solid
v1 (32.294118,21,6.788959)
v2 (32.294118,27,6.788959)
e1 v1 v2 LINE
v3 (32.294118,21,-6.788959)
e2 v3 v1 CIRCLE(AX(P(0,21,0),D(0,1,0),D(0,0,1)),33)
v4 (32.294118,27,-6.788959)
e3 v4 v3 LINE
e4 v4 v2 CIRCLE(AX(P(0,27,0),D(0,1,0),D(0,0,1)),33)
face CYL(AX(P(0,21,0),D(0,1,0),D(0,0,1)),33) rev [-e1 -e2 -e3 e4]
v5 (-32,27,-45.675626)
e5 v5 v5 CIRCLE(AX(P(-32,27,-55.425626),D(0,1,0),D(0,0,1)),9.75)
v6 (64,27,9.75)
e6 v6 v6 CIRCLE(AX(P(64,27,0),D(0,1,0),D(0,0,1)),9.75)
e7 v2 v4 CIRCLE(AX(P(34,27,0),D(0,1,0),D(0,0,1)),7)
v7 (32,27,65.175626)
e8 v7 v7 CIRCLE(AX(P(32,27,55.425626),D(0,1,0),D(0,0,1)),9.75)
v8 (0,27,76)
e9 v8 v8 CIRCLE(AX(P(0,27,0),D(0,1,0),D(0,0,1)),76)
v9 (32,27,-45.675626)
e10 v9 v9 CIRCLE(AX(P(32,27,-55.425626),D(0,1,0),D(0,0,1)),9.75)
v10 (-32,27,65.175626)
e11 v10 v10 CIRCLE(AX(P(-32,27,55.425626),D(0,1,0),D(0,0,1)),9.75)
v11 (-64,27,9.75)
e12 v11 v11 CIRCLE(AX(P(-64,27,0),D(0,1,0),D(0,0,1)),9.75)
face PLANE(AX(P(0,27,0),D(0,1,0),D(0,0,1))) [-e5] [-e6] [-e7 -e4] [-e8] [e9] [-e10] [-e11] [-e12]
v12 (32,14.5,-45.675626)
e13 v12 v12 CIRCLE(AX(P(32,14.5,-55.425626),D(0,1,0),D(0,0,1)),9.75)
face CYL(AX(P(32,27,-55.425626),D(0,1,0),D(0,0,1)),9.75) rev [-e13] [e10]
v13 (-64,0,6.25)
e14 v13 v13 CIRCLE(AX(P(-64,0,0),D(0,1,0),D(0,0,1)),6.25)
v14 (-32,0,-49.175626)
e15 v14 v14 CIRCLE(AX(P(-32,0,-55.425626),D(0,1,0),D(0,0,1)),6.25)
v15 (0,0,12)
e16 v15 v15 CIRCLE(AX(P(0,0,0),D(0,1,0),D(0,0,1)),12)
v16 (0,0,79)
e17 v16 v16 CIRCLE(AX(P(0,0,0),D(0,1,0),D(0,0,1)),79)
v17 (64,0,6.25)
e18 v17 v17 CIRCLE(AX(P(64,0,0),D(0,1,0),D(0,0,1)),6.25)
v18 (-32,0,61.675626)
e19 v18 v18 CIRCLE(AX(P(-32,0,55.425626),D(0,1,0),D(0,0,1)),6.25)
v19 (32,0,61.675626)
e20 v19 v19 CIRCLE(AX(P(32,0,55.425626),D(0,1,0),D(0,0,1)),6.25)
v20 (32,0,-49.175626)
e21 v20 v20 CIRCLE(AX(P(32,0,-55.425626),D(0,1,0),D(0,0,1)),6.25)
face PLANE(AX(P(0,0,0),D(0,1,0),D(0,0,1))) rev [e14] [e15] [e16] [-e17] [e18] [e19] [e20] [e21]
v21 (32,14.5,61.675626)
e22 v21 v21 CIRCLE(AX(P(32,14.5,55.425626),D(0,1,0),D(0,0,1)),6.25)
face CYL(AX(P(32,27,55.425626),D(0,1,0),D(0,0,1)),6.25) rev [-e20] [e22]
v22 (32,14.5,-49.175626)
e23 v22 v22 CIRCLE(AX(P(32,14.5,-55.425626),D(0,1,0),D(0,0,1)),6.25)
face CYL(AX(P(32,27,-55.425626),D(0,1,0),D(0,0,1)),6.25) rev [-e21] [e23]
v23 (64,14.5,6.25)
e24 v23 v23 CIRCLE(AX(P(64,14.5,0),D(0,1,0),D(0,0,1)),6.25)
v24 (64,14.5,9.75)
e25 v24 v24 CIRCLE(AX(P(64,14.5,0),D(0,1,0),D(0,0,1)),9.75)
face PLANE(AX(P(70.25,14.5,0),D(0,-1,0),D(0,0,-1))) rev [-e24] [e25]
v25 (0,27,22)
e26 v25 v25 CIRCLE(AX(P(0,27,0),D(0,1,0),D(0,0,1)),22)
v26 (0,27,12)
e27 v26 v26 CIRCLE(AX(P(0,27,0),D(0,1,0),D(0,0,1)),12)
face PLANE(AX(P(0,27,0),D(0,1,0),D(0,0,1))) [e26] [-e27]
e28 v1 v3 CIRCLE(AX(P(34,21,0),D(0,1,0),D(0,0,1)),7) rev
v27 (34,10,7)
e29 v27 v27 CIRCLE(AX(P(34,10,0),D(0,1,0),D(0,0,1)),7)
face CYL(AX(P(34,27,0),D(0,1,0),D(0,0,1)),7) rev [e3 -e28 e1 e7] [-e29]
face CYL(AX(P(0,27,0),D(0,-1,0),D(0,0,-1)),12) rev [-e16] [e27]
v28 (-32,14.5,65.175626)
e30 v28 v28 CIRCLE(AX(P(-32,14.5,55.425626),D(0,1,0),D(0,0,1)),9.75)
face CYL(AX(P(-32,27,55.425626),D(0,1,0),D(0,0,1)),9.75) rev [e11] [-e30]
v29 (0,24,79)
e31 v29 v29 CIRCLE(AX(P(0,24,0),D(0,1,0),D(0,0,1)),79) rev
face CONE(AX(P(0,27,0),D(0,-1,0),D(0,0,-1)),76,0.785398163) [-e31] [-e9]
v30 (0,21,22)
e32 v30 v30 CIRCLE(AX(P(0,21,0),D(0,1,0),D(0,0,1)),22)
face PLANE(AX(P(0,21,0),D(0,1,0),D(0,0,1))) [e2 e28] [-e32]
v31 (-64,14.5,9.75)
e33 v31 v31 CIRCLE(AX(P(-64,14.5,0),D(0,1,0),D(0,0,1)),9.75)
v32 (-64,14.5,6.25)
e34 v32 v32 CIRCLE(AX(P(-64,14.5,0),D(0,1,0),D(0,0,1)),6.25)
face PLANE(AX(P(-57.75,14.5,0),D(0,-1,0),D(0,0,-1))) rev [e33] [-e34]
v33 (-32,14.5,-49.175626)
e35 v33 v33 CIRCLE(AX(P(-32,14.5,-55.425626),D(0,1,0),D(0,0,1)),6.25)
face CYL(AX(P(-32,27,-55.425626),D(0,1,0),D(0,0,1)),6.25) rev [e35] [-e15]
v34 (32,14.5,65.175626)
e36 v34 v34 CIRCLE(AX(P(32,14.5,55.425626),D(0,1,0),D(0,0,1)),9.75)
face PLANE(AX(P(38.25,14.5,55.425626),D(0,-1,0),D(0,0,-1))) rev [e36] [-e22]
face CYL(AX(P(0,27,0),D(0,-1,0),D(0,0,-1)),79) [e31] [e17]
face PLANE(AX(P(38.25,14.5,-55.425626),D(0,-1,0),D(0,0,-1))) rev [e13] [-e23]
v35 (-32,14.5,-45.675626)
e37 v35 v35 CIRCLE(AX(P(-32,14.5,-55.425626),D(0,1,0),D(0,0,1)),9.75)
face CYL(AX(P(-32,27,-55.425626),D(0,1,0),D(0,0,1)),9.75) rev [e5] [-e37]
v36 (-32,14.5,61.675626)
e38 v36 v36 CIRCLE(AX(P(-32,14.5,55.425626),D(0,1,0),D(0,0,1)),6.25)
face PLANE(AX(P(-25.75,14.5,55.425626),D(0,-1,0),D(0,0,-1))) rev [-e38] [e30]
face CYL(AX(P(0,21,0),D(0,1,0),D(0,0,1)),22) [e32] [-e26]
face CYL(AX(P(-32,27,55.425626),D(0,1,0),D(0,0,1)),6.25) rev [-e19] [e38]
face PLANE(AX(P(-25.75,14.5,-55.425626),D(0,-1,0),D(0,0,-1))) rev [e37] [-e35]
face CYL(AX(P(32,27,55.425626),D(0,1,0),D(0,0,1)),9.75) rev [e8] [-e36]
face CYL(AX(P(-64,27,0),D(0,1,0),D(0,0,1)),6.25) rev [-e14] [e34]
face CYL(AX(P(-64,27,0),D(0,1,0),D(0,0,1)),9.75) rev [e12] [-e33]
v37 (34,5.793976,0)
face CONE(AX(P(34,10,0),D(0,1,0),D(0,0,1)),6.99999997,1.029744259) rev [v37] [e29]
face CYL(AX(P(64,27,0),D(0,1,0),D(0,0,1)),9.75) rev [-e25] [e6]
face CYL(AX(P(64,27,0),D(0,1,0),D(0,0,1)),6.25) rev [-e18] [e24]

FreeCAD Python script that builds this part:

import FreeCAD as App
import Part
import Sketcher


def edges_at(feature, points):
    """Names of the edges that pass closest to the given points."""
    edges = feature.Shape.Edges
    near = lambda p: min(range(len(edges)), key=lambda i: edges[i].distToShape(Part.Vertex(*p))[0])
    return sorted({f"Edge{near(p) + 1}" for p in points})

doc = App.newDocument("Part")
body = doc.addObject("PartDesign::Body", "Body")

# Sketch on XZ plane
sketch1 = body.newObject("Sketcher::SketchObject", "Sketch")
sketch1.AttachmentSupport = (doc.getObject("XZ_Plane"), [""])
sketch1.MapMode = "FlatFace"
sketch1.addGeometry([
    Part.Circle(App.Vector(0, 0, 0), App.Vector(0, 0, 1), 79),
    Part.Circle(App.Vector(0, 0, 0), App.Vector(0, 0, 1), 12),
], False)
sketch1.addConstraint([
    Sketcher.Constraint("Coincident", 0, 3, -1, 1),
    Sketcher.Constraint("Coincident", 1, 3, -1, 1),
    Sketcher.Constraint("Diameter", 0, 158.0),
    Sketcher.Constraint("Diameter", 1, 24.0),
])
pad1 = body.newObject("PartDesign::Pad", "Pad")
pad1.Profile = sketch1
pad1.Length = 27
pad1.Reversed = True

# Sketch on XZ plane
sketch2 = body.newObject("Sketcher::SketchObject", "Sketch001")
sketch2.AttachmentSupport = (doc.getObject("XZ_Plane"), [""])
sketch2.MapMode = "FlatFace"
sketch2.AttachmentOffset = App.Placement(App.Vector(0, 0, -27), App.Rotation())
sketch2.addGeometry([
    Part.Circle(App.Vector(32, -55, 0), App.Vector(0, 0, 1), 6),  # 0
    Part.Circle(App.Vector(64, 0, 0), App.Vector(0, 0, 1), 6),  # 1
    Part.Circle(App.Vector(32, 55, 0), App.Vector(0, 0, 1), 6),  # 2
    Part.Circle(App.Vector(-32, 55, 0), App.Vector(0, 0, 1), 6),  # 3
    Part.Circle(App.Vector(-64, 0, 0), App.Vector(0, 0, 1), 6),  # 4
    Part.Circle(App.Vector(-32, -55, 0), App.Vector(0, 0, 1), 6),  # 5
    Part.Circle(App.Vector(0, 0, 0), App.Vector(0, 0, 1), 6),  # 6
], False)
sketch2.addConstraint([
    Sketcher.Constraint("Coincident", 6, 3, -1, 1),
    Sketcher.Constraint("Equal", 0, 1),
    Sketcher.Constraint("Equal", 1, 2),
    Sketcher.Constraint("Equal", 2, 3),
    Sketcher.Constraint("Equal", 3, 4),
    Sketcher.Constraint("Equal", 4, 5),
    Sketcher.Constraint("Equal", 5, 6),
    Sketcher.Constraint("Symmetric", 0, 3, 3, 3, -1, 1),
    Sketcher.Constraint("Symmetric", 1, 3, 4, 3, -1, 1),
    Sketcher.Constraint("Symmetric", 2, 3, 5, 3, -1, 1),
    Sketcher.Constraint("Symmetric", 2, 3, 3, 3, -2),
    Sketcher.Constraint("PointOnObject", 1, 3, -1),
    Sketcher.Constraint("Diameter", 0, 12.5),
    Sketcher.Constraint("DistanceX", -1, 1, 0, 3, 32.0),
    Sketcher.Constraint("DistanceX", -1, 1, 1, 3, 64.0),
    Sketcher.Constraint("DistanceY", 0, 3, 2, 3, 110.851252),
])
doc.recompute()
hole = body.newObject("PartDesign::Hole", "Hole")
hole.Profile = sketch2
hole.ThreadType = "None"
hole.Diameter = 12.5
hole.DepthType = "ThroughAll"
hole.HoleCutType = "Counterbore"
hole.HoleCutDiameter = 19.5
hole.HoleCutDepth = 12.5
hole.Reversed = True

# Sketch on XZ plane
sketch3 = body.newObject("Sketcher::SketchObject", "Sketch002")
sketch3.AttachmentSupport = (doc.getObject("XZ_Plane"), [""])
sketch3.MapMode = "FlatFace"
sketch3.AttachmentOffset = App.Placement(App.Vector(0, 0, -27), App.Rotation())
sketch3.addGeometry(Part.Circle(App.Vector(34, 0, 0), App.Vector(0, 0, 1), 7), False)
sketch3.addConstraint([
    Sketcher.Constraint("PointOnObject", 0, 3, -1),
    Sketcher.Constraint("Diameter", 0, 14.0),
    Sketcher.Constraint("DistanceX", -1, 1, 0, 3, 34.0),
])
doc.recompute()
hole2 = body.newObject("PartDesign::Hole", "Hole001")
hole2.Profile = sketch3
hole2.ThreadType = "None"
hole2.Diameter = 14
hole2.DepthType = "Dimension"
hole2.Depth = 17
hole2.DrillPoint = "Angled"
hole2.DrillPointAngle = 118
hole2.Reversed = True

# Sketch on XZ plane
sketch4 = body.newObject("Sketcher::SketchObject", "Sketch003")
sketch4.AttachmentSupport = (doc.getObject("XZ_Plane"), [""])
sketch4.MapMode = "FlatFace"
sketch4.AttachmentOffset = App.Placement(App.Vector(0, 0, -27), App.Rotation())
sketch4.addGeometry([
    Part.Circle(App.Vector(0, 0, 0), App.Vector(0, 0, 1), 33),
    Part.Circle(App.Vector(0, 0, 0), App.Vector(0, 0, 1), 22),
], False)
sketch4.addConstraint([
    Sketcher.Constraint("Coincident", 0, 3, -1, 1),
    Sketcher.Constraint("Coincident", 1, 3, -1, 1),
    Sketcher.Constraint("Diameter", 0, 66.0),
    Sketcher.Constraint("Diameter", 1, 44.0),
])
pocket1 = body.newObject("PartDesign::Pocket", "Pocket")
pocket1.Profile = sketch4
pocket1.Length = 6
pocket1.Reversed = True
doc.recompute()

chamfer = body.newObject("PartDesign::Chamfer", "Chamfer")
chamfer.Base = (pocket1, edges_at(pocket1, [(-79, 27, 0)]))
chamfer.Size = 3

doc.recompute()
